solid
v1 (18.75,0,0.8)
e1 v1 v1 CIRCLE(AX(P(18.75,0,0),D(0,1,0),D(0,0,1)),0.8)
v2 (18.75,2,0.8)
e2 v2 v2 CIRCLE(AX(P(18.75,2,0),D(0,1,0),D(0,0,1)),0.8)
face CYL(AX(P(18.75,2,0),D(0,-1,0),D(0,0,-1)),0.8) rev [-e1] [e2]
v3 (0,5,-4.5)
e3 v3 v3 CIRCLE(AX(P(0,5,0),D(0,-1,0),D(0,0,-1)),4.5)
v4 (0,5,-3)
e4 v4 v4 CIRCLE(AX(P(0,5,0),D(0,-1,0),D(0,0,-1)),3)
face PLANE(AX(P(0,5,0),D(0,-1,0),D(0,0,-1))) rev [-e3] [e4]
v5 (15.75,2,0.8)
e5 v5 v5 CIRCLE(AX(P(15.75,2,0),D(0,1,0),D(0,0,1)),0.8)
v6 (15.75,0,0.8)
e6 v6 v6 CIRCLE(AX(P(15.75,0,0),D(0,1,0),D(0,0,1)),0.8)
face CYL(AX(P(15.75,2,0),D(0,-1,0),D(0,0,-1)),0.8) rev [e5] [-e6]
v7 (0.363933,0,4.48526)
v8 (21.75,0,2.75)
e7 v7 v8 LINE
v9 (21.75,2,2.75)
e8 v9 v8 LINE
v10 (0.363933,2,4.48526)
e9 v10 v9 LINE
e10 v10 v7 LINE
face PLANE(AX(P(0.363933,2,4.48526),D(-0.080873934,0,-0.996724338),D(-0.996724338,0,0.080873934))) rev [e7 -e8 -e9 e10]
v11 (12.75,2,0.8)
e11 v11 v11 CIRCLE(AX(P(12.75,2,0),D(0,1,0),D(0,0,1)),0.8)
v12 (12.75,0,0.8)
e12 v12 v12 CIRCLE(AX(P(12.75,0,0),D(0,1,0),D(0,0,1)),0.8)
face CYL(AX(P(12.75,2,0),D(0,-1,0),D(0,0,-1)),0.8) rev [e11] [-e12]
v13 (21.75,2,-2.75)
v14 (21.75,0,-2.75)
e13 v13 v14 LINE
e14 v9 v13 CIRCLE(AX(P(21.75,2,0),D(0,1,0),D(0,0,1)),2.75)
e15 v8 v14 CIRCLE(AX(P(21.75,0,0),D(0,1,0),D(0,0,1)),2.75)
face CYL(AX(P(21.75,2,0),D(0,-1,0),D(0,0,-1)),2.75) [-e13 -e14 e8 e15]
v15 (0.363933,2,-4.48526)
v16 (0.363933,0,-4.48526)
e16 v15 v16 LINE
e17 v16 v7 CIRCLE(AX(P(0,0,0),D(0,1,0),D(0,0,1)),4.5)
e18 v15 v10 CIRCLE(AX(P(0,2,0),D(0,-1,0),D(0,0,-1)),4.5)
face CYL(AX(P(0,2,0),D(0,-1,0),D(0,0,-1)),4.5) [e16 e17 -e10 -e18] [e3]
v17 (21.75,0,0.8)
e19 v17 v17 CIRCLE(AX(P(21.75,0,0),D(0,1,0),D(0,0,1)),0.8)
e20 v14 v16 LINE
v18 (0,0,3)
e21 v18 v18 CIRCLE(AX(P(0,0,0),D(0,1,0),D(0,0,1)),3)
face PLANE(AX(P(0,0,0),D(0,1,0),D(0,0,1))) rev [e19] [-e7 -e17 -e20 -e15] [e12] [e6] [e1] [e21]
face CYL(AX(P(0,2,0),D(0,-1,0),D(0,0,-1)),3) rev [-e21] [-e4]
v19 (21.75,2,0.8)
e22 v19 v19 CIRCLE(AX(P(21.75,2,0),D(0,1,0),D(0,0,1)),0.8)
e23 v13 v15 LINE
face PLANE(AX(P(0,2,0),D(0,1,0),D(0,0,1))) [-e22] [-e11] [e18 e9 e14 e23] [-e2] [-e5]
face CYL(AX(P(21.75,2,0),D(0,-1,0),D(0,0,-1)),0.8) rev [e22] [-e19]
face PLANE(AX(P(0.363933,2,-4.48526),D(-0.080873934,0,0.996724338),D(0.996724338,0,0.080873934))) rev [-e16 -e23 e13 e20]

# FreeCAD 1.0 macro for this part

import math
import FreeCAD as App
import Part
import Sketcher
from FreeCAD import Vector

doc = App.newDocument("Part")
body = doc.addObject("PartDesign::Body", "Body")

# Sketch on XZ plane
sketch1 = doc.addObject("Sketcher::SketchObject", "Sketch")
body.addObject(sketch1)
sketch1.AttachmentSupport = (doc.XZ_Plane, [""])
sketch1.MapMode = "FlatFace"
sketch1.addGeometry([
    Part.LineSegment(Vector(21.8, -2.8, 0), Vector(0.4, -4.5, 0)),  # 0
    Part.ArcOfCircle(Part.Circle(Vector(0, 0, 0), Vector(0, 0, 1), 4.5), math.radians(85), math.radians(275)),  # 1
    Part.LineSegment(Vector(0.4, 4.5, 0), Vector(21.8, 2.8, 0)),  # 2
    Part.ArcOfCircle(Part.Circle(Vector(21.8, 0, 0), Vector(0, 0, 1), 2.8), math.radians(-90), math.radians(90)),  # 3
    Part.Circle(Vector(21.8, 0, 0), Vector(0, 0, 1), 0.8),  # 4
    Part.Circle(Vector(18.8, 0, 0), Vector(0, 0, 1), 0.8),  # 5
    Part.Circle(Vector(15.8, 0, 0), Vector(0, 0, 1), 0.8),  # 6
    Part.Circle(Vector(12.8, 0, 0), Vector(0, 0, 1), 0.8),  # 7
    Part.Circle(Vector(0, 0, 0), Vector(0, 0, 1), 3),  # 8
], False)
sketch1.addConstraint([
    Sketcher.Constraint("Tangent", 0, 2, 1, 2),
    Sketcher.Constraint("Tangent", 1, 1, 2, 1),
    Sketcher.Constraint("Coincident", 2, 2, 3, 2),
    Sketcher.Constraint("Coincident", 3, 1, 0, 1),
    Sketcher.Constraint("Coincident", 1, 3, -1, 1),
    Sketcher.Constraint("Coincident", 8, 3, -1, 1),
    Sketcher.Constraint("Coincident", 4, 3, 3, 3),
    Sketcher.Constraint("Equal", 4, 5),
    Sketcher.Constraint("Equal", 5, 6),
    Sketcher.Constraint("Equal", 6, 7),
    Sketcher.Constraint("Symmetric", 2, 2, 3, 1, -1),
    Sketcher.Constraint("PointOnObject", 5, 3, -1),
    Sketcher.Constraint("PointOnObject", 6, 3, -1),
    Sketcher.Constraint("PointOnObject", 7, 3, -1),
    Sketcher.Constraint("Vertical", 4, 3, 2, 2),
    Sketcher.Constraint("Diameter", 8, 6.0),
    Sketcher.Constraint("Diameter", 4, 1.6),
    Sketcher.Constraint("Radius", 1, 4.5),
    Sketcher.Constraint("Radius", 3, 2.75),
    Sketcher.Constraint("DistanceX", 5, 3, 3, 3, 3.0),
    Sketcher.Constraint("DistanceX", 6, 3, 5, 3, 3.0),
    Sketcher.Constraint("DistanceX", 7, 3, 6, 3, 3.0),
    Sketcher.Constraint("DistanceX", -1, 1, 3, 3, 21.75),
])
pad1 = doc.addObject("PartDesign::Pad", "Pad")
body.addObject(pad1)
pad1.Profile = sketch1
pad1.Length = 2
pad1.Reversed = True

# Sketch on XZ plane
sketch2 = doc.addObject("Sketcher::SketchObject", "Sketch001")
body.addObject(sketch2)
sketch2.AttachmentSupport = (doc.XZ_Plane, [""])
sketch2.MapMode = "FlatFace"
sketch2.AttachmentOffset = App.Placement(Vector(0, 0, -2), App.Rotation())
sketch2.addGeometry([
    Part.Circle(Vector(0, 0, 0), Vector(0, 0, 1), 4.5),
    Part.Circle(Vector(0, 0, 0), Vector(0, 0, 1), 3),
], False)
sketch2.addConstraint([
    Sketcher.Constraint("Coincident", 0, 3, -1, 1),
    Sketcher.Constraint("Coincident", 1, 3, -1, 1),
    Sketcher.Constraint("Diameter", 0, 9.0),
    Sketcher.Constraint("Diameter", 1, 6.0),
])
pad2 = doc.addObject("PartDesign::Pad", "Pad001")
body.addObject(pad2)
pad2.Profile = sketch2
pad2.Length = 3
pad2.Reversed = True

doc.recompute()
